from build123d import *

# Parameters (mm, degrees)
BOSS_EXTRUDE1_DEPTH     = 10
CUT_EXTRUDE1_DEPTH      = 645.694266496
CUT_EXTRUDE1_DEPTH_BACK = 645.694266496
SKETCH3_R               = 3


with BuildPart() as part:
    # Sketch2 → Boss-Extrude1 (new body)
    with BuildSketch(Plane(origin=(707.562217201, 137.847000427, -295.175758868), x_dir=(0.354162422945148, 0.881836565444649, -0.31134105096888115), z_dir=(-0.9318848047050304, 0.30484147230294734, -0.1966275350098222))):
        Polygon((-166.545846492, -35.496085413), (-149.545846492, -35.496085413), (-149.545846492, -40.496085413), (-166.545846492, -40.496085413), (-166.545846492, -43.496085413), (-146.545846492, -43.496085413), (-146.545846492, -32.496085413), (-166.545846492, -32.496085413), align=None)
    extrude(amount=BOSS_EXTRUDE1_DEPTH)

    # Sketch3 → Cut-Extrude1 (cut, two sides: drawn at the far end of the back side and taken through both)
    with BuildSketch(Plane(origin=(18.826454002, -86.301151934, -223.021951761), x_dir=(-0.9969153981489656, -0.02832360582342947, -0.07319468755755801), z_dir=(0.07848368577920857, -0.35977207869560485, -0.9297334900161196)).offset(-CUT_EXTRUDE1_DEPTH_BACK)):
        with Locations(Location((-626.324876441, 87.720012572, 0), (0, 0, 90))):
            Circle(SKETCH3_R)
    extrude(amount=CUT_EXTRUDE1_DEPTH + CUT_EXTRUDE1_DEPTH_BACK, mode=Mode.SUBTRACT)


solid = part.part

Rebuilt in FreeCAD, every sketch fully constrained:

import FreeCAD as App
import Part
import Sketcher
from FreeCAD import Vector
Q = App.Units.Quantity


def add_polygon(sketch, points):
    """Adds a closed chain of lines whose ends are joined by coincident constraints."""
    first, n = sketch.GeometryCount, len(points)
    for a, b in zip(points, points[1:] + points[:1]):
        sketch.addGeometry(Part.LineSegment(App.Vector(*a, 0), App.Vector(*b, 0)), False)
    for i in range(n):
        sketch.addConstraint(Sketcher.Constraint("Coincident", first + i, 2, first + (i + 1) % n, 1))

doc = App.newDocument("Part")
body = doc.addObject("PartDesign::Body", "Body")

sketch1 = body.newObject("Sketcher::SketchObject", "Sketch")
sketch1.Placement = App.Placement(Vector(707.562217, 137.847, -295.175759), App.Rotation(Vector(0.354162423, 0.881836565, -0.311341051), Vector(0.078483686, -0.359772079, -0.92973349), Vector(-0.931884805, 0.304841472, -0.196627535), "ZXY"))
add_polygon(sketch1, [(-166.5, -35.5), (-149.5, -35.5), (-149.5, -40.5), (-166.5, -40.5), (-166.5, -43.5), (-146.5, -43.5), (-146.5, -32.5), (-166.5, -32.5)])
sketch1.addConstraint(Sketcher.Constraint("Horizontal", 0))
sketch1.addConstraint(Sketcher.Constraint("Vertical", 1))
sketch1.addConstraint(Sketcher.Constraint("Horizontal", 2))
sketch1.addConstraint(Sketcher.Constraint("Vertical", 3))
sketch1.addConstraint(Sketcher.Constraint("Horizontal", 4))
sketch1.addConstraint(Sketcher.Constraint("Vertical", 5))
sketch1.addConstraint(Sketcher.Constraint("Horizontal", 6))
sketch1.addConstraint(Sketcher.Constraint("Vertical", 7))
sketch1.addConstraint(Sketcher.Constraint("Vertical", 3, 2, 6, 2))
sketch1.addConstraint(Sketcher.Constraint("Equal", 3, 7))
sketch1.addConstraint(Sketcher.Constraint("DistanceX", 0, 1, 0, 2, Q("17 mm")))
sketch1.addConstraint(Sketcher.Constraint("DistanceX", 4, 1, 4, 2, Q("20 mm")))
sketch1.addConstraint(Sketcher.Constraint("DistanceY", 1, 2, 1, 1, Q("5 mm")))
sketch1.addConstraint(Sketcher.Constraint("DistanceY", 3, 2, 3, 1, Q("3 mm")))
sketch1.addConstraint(Sketcher.Constraint("DistanceX", 0, 2, -1, 1, Q("149.545846 mm")))
sketch1.addConstraint(Sketcher.Constraint("DistanceY", 0, 2, -1, 1, Q("35.496085 mm")))
pad1 = body.newObject("PartDesign::Pad", "Pad")
pad1.Profile = sketch1
pad1.Length = 10

sketch2 = body.newObject("Sketcher::SketchObject", "Sketch001")
sketch2.Placement = App.Placement(Vector(18.826454, -86.301152, -223.021952), App.Rotation(Vector(-0.996915398, -0.028323606, -0.073194688), Vector(0, 0.932610221, -0.360885266), Vector(0.078483686, -0.359772079, -0.92973349), "ZXY"))
sketch2.addGeometry(Part.Circle(Vector(-626.3, 87.7, 0), Vector(0, 0, 1), 3), False)
sketch2.addConstraint(Sketcher.Constraint("Diameter", 0, Q("6 mm")))
sketch2.addConstraint(Sketcher.Constraint("DistanceX", 0, 3, -1, 1, Q("626.324876 mm")))
sketch2.addConstraint(Sketcher.Constraint("DistanceY", -1, 1, 0, 3, Q("87.720013 mm")))
pocket1 = body.newObject("PartDesign::Pocket", "Pocket")
pocket1.Profile = sketch2
pocket1.Type = "ThroughAll"
pocket1.Midplane = True

doc.recompute()
